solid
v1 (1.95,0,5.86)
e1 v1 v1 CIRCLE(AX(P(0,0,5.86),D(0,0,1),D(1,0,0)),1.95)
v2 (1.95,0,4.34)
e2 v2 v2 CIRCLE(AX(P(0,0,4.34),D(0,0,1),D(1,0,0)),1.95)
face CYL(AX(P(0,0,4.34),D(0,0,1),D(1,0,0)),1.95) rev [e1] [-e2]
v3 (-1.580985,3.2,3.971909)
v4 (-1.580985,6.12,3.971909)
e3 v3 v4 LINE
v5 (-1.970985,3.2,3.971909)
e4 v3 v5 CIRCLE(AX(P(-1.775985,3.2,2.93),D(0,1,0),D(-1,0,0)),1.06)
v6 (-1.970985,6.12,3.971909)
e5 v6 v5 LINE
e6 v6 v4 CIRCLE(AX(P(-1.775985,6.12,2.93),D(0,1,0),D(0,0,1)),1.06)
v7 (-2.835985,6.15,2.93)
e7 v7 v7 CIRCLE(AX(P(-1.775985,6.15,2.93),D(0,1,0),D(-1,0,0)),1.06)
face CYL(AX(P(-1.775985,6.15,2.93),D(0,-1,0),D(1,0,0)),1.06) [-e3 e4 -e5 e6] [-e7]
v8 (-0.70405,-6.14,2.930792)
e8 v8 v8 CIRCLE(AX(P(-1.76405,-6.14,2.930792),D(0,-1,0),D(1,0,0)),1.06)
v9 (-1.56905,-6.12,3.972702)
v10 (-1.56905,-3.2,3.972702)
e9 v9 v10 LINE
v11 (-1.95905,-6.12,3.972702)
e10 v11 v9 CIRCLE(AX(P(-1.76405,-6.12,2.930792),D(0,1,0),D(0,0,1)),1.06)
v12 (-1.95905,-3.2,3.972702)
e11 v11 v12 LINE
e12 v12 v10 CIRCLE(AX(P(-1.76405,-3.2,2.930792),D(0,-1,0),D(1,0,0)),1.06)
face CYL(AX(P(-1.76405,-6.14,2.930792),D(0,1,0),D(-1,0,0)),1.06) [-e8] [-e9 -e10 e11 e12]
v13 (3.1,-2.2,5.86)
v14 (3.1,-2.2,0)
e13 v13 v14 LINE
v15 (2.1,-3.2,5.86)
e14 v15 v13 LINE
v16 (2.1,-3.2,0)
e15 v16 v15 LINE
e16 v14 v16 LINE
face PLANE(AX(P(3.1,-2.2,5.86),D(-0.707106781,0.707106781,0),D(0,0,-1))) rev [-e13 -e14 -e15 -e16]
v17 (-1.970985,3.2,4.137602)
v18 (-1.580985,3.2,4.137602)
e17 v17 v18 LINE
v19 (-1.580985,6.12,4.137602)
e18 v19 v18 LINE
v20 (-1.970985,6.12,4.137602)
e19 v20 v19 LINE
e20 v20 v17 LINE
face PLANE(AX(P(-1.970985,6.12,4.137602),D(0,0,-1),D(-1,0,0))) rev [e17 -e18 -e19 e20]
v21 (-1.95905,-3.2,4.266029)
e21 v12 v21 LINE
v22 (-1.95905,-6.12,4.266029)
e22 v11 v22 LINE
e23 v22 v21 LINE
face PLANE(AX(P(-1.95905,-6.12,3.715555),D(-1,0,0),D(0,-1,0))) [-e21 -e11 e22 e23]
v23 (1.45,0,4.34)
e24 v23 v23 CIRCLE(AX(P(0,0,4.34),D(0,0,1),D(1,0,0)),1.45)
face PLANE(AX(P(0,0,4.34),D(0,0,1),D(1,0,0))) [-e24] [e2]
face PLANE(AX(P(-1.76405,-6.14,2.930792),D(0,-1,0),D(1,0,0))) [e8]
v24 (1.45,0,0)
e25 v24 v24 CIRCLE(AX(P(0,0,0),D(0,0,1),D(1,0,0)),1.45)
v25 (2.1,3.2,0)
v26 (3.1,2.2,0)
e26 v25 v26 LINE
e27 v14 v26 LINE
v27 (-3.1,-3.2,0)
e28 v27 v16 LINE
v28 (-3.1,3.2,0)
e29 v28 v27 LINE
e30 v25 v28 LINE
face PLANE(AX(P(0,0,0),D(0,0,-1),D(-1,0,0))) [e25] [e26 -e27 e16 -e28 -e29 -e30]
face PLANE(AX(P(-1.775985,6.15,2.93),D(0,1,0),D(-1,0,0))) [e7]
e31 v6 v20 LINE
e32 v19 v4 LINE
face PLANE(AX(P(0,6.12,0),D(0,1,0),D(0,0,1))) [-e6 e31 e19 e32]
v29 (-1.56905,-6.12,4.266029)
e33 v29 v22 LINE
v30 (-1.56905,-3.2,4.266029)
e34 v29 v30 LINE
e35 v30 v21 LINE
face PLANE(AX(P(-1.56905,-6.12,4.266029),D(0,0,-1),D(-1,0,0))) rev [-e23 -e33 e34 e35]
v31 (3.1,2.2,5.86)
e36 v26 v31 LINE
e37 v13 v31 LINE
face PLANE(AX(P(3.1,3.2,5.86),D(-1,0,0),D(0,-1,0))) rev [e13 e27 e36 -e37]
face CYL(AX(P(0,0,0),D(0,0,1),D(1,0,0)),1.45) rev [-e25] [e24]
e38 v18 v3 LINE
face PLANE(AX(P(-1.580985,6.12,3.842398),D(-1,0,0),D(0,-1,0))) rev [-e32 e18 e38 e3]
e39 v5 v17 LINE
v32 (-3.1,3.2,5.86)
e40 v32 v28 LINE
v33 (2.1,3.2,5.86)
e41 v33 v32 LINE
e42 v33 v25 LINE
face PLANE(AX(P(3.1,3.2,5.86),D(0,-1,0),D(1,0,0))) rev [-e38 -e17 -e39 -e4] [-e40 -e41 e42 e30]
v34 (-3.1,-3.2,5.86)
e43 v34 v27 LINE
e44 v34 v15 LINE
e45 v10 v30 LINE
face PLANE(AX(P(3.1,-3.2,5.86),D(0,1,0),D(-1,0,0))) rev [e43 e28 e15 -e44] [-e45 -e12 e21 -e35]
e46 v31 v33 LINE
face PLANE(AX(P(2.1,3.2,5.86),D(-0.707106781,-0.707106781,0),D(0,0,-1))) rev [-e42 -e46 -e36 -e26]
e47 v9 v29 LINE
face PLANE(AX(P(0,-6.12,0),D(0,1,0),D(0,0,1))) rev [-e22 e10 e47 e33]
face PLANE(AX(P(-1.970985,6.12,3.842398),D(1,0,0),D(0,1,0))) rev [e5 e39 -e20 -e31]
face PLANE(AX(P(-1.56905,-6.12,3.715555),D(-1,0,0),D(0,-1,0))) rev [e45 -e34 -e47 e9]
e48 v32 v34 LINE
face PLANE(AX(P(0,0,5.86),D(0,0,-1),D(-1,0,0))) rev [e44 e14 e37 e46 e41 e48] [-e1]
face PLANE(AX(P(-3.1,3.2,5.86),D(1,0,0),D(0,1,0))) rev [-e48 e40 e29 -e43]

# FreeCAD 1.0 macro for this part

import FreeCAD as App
import Part
import Sketcher


def edges_at(feature, points):
    """Names of the edges that pass closest to the given points."""
    edges = feature.Shape.Edges
    near = lambda p: min(range(len(edges)), key=lambda i: edges[i].distToShape(Part.Vertex(*p))[0])
    return sorted({f"Edge{near(p) + 1}" for p in points})

doc = App.newDocument("Part")
body = doc.addObject("PartDesign::Body", "Body")

sketch1 = body.newObject("Sketcher::SketchObject", "Sketch")
sketch1.AttachmentSupport = (doc.getObject("XY_Plane"), [""])
sketch1.MapMode = "FlatFace"
sketch1.addGeometry([
    Part.LineSegment(App.Vector(-3.1, 3.2, 0), App.Vector(-3.1, -3.2, 0)),
    Part.LineSegment(App.Vector(-3.1, -3.2, 0), App.Vector(3.1, -3.2, 0)),
    Part.LineSegment(App.Vector(3.1, -3.2, 0), App.Vector(3.1, 3.2, 0)),
    Part.LineSegment(App.Vector(3.1, 3.2, 0), App.Vector(-3.1, 3.2, 0)),
], False)
sketch1.addConstraint([
    Sketcher.Constraint("Coincident", 0, 2, 1, 1),
    Sketcher.Constraint("Coincident", 1, 2, 2, 1),
    Sketcher.Constraint("Coincident", 2, 2, 3, 1),
    Sketcher.Constraint("Coincident", 3, 2, 0, 1),
    Sketcher.Constraint("Vertical", 0),
    Sketcher.Constraint("Horizontal", 1),
    Sketcher.Constraint("Vertical", 2),
    Sketcher.Constraint("Horizontal", 3),
    Sketcher.Constraint("Symmetric", 0, 2, 2, 2, -1, 1),
    Sketcher.Constraint("DistanceX", 1, 1, 1, 2, 6.2),
    Sketcher.Constraint("DistanceY", 0, 2, 0, 1, 6.4),
])
pad1 = body.newObject("PartDesign::Pad", "Pad")
pad1.Profile = sketch1
pad1.Length = 5.86
doc.recompute()

chamfer = body.newObject("PartDesign::Chamfer", "Chamfer")
chamfer.Base = (pad1, edges_at(pad1, [(3.1, 3.2, 2.93), (3.1, -3.2, 2.93)]))
chamfer.Size = 1

sketch2 = body.newObject("Sketcher::SketchObject", "Sketch001")
sketch2.AttachmentSupport = (doc.getObject("XY_Plane"), [""])
sketch2.MapMode = "FlatFace"
sketch2.AttachmentOffset = App.Placement(App.Vector(0, 0, 5.86), App.Rotation())
sketch2.addGeometry(Part.Circle(App.Vector(0, 0, 0), App.Vector(0, 0, 1), 1.95), False)
sketch2.addConstraint([
    Sketcher.Constraint("Coincident", 0, 3, -1, 1),
    Sketcher.Constraint("Diameter", 0, 3.9),
])
pocket1 = body.newObject("PartDesign::Pocket", "Pocket")
pocket1.Profile = sketch2
pocket1.Length = 1.52

sketch3 = body.newObject("Sketcher::SketchObject", "Sketch002")
sketch3.AttachmentSupport = (doc.getObject("XY_Plane"), [""])
sketch3.MapMode = "FlatFace"
sketch3.AttachmentOffset = App.Placement(App.Vector(0, 0, 4.34), App.Rotation())
sketch3.addGeometry(Part.Circle(App.Vector(0, 0, 0), App.Vector(0, 0, 1), 1.45), False)
sketch3.addConstraint([
    Sketcher.Constraint("Coincident", 0, 3, -1, 1),
    Sketcher.Constraint("Diameter", 0, 2.9),
])
pocket2 = body.newObject("PartDesign::Pocket", "Pocket001")
pocket2.Profile = sketch3
pocket2.Type = "ThroughAll"

sketch4 = body.newObject("Sketcher::SketchObject", "Sketch003")
sketch4.AttachmentSupport = (doc.getObject("XZ_Plane"), [""])
sketch4.MapMode = "FlatFace"
sketch4.AttachmentOffset = App.Placement(App.Vector(0, 0, -3.2), App.Rotation())
sketch4.addGeometry(Part.Circle(App.Vector(-1.775985, 2.93, 0), App.Vector(0, 0, 1), 1.06), False)
sketch4.addConstraint([
    Sketcher.Constraint("Diameter", 0, 2.12),
    Sketcher.Constraint("DistanceY", -1, 1, 0, 3, 2.93),
    Sketcher.Constraint("DistanceX", 0, 3, -1, 1, 1.775985),
])
pad2 = body.newObject("PartDesign::Pad", "Pad001")
pad2.Profile = sketch4
pad2.Length = 2.95
pad2.Reversed = True

sketch5 = body.newObject("Sketcher::SketchObject", "Sketch004")
sketch5.AttachmentSupport = (doc.getObject("XZ_Plane"), [""])
sketch5.MapMode = "FlatFace"
sketch5.AttachmentOffset = App.Placement(App.Vector(0, 0, -3.2), App.Rotation())
sketch5.addGeometry([
    Part.LineSegment(App.Vector(-1.970985, 3.842398, 0), App.Vector(-1.970985, 4.137602, 0)),
    Part.LineSegment(App.Vector(-1.970985, 4.137602, 0), App.Vector(-1.580985, 4.137602, 0)),
    Part.LineSegment(App.Vector(-1.580985, 4.137602, 0), App.Vector(-1.580985, 3.842398, 0)),
    Part.LineSegment(App.Vector(-1.580985, 3.842398, 0), App.Vector(-1.970985, 3.842398, 0)),
], False)
sketch5.addConstraint([
    Sketcher.Constraint("Coincident", 0, 2, 1, 1),
    Sketcher.Constraint("Coincident", 1, 2, 2, 1),
    Sketcher.Constraint("Coincident", 2, 2, 3, 1),
    Sketcher.Constraint("Coincident", 3, 2, 0, 1),
    Sketcher.Constraint("Vertical", 0),
    Sketcher.Constraint("Horizontal", 1),
    Sketcher.Constraint("Vertical", 2),
    Sketcher.Constraint("Horizontal", 3),
    Sketcher.Constraint("DistanceX", 1, 1, 1, 2, 0.39),
    Sketcher.Constraint("DistanceY", -1, 1, 0, 2, 4.137602),
    Sketcher.Constraint("DistanceY", -1, 1, 2, 2, 3.842398),
    Sketcher.Constraint("DistanceX", 0, 2, -1, 1, 1.970985),
])
pad3 = body.newObject("PartDesign::Pad", "Pad002")
pad3.Profile = sketch5
pad3.Length = 2.92
pad3.Reversed = True

sketch6 = body.newObject("Sketcher::SketchObject", "Sketch005")
sketch6.AttachmentSupport = (doc.getObject("XZ_Plane"), [""])
sketch6.MapMode = "FlatFace"
sketch6.AttachmentOffset = App.Placement(App.Vector(0, 0, 3.2), App.Rotation())
sketch6.addGeometry(Part.Circle(App.Vector(-1.76405, 2.930792, 0), App.Vector(0, 0, 1), 1.06), False)
sketch6.addConstraint([
    Sketcher.Constraint("Diameter", 0, 2.12),
    Sketcher.Constraint("DistanceX", 0, 3, -1, 1, 1.76405),
    Sketcher.Constraint("DistanceY", -1, 1, 0, 3, 2.930792),
])
pad4 = body.newObject("PartDesign::Pad", "Pad003")
pad4.Profile = sketch6
pad4.Length = 2.94

sketch7 = body.newObject("Sketcher::SketchObject", "Sketch006")
sketch7.AttachmentSupport = (doc.getObject("XZ_Plane"), [""])
sketch7.MapMode = "FlatFace"
sketch7.AttachmentOffset = App.Placement(App.Vector(0, 0, 3.2), App.Rotation())
sketch7.addGeometry([
    Part.LineSegment(App.Vector(-1.95905, 4.266029, 0), App.Vector(-1.95905, 3.715555, 0)),
    Part.LineSegment(App.Vector(-1.95905, 3.715555, 0), App.Vector(-1.56905, 3.715555, 0)),
    Part.LineSegment(App.Vector(-1.56905, 3.715555, 0), App.Vector(-1.56905, 4.266029, 0)),
    Part.LineSegment(App.Vector(-1.56905, 4.266029, 0), App.Vector(-1.95905, 4.266029, 0)),
], False)
sketch7.addConstraint([
    Sketcher.Constraint("Coincident", 0, 2, 1, 1),
    Sketcher.Constraint("Coincident", 1, 2, 2, 1),
    Sketcher.Constraint("Coincident", 2, 2, 3, 1),
    Sketcher.Constraint("Coincident", 3, 2, 0, 1),
    Sketcher.Constraint("Vertical", 0),
    Sketcher.Constraint("Horizontal", 1),
    Sketcher.Constraint("Vertical", 2),
    Sketcher.Constraint("Horizontal", 3),
    Sketcher.Constraint("DistanceX", 1, 1, 1, 2, 0.39),
    Sketcher.Constraint("DistanceY", 0, 2, 0, 1, 0.550474),
    Sketcher.Constraint("DistanceX", 0, 2, -1, 1, 1.95905),
    Sketcher.Constraint("DistanceY", -1, 1, 2, 2, 4.266029),
])
pad5 = body.newObject("PartDesign::Pad", "Pad004")
pad5.Profile = sketch7
pad5.Length = 2.92

doc.recompute()
